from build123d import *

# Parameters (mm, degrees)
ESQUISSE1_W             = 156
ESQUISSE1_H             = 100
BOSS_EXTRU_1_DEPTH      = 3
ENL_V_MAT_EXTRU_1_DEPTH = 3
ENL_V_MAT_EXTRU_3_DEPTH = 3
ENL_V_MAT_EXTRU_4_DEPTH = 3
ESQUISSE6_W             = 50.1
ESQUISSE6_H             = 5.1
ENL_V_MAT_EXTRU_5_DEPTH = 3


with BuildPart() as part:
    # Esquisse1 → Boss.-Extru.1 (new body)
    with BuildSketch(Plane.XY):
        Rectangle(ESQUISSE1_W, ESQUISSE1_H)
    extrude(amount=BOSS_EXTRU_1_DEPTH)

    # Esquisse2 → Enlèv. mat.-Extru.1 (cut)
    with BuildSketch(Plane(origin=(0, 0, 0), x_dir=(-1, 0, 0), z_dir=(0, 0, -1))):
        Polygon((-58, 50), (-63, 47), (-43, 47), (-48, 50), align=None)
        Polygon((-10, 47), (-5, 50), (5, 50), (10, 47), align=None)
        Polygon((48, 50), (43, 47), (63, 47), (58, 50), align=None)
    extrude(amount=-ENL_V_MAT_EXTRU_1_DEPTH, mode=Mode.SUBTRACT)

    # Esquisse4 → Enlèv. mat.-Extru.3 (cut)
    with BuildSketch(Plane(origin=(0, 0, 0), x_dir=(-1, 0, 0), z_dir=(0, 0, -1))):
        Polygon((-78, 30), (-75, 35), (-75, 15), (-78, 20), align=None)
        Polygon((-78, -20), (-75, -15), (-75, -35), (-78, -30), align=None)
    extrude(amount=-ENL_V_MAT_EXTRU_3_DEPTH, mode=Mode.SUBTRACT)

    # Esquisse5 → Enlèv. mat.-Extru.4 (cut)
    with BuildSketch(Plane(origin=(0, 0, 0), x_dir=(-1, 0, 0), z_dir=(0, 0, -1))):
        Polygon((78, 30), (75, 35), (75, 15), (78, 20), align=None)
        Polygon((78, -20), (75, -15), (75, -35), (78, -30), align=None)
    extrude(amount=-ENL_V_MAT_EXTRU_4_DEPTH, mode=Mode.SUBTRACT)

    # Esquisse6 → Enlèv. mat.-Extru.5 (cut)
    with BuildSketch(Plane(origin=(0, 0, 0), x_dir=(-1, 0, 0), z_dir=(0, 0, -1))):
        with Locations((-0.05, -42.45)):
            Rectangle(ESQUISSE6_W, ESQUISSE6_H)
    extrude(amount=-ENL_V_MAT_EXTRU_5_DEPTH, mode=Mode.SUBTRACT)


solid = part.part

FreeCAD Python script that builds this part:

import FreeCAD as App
import Part
import Sketcher
from FreeCAD import Vector
Q = App.Units.Quantity


def add_polygon(sketch, points):
    """Adds a closed chain of lines whose ends are joined by coincident constraints."""
    first, n = sketch.GeometryCount, len(points)
    for a, b in zip(points, points[1:] + points[:1]):
        sketch.addGeometry(Part.LineSegment(App.Vector(*a, 0), App.Vector(*b, 0)), False)
    for i in range(n):
        sketch.addConstraint(Sketcher.Constraint("Coincident", first + i, 2, first + (i + 1) % n, 1))

doc = App.newDocument("Part")
params = doc.addObject("Spreadsheet::Sheet", "Params")
for row, (alias, value) in enumerate([
    ("sketch1_width", "156 mm"),
    ("sketch1_height", "100 mm"),
    ("pad1_length", "3 mm"),
    ("sketch2_width", "20 mm"),
    ("sketch2_width2", "10 mm"),
    ("pocket1_length", "3 mm"),
    ("sketch3_height", "10 mm"),
    ("sketch3_height2", "20 mm"),
    ("pocket2_length", "3 mm"),
    ("sketch4_height", "20 mm"),
    ("sketch4_height2", "10 mm"),
    ("pocket3_length", "3 mm"),
    ("sketch5_width", "50.1 mm"),
    ("sketch5_height", "5.1 mm"),
    ("pocket4_length", "3 mm"),
], start=1):
    params.set(f"A{row}", alias)
    params.set(f"B{row}", "=" + value)
    params.setAlias(f"B{row}", alias)

body = doc.addObject("PartDesign::Body", "Body")

sketch1 = body.newObject("Sketcher::SketchObject", "Sketch")
sketch1.AttachmentSupport = (doc.getObject("XY_Plane"), [""])
sketch1.MapMode = "FlatFace"
add_polygon(sketch1, [(-78, 50), (-78, -50), (78, -50), (78, 50)])
sketch1.addConstraint([
    Sketcher.Constraint("Vertical", 0),
    Sketcher.Constraint("Horizontal", 1),
    Sketcher.Constraint("Vertical", 2),
    Sketcher.Constraint("Horizontal", 3),
    Sketcher.Constraint("Symmetric", 0, 2, 2, 2, -1, 1),
    Sketcher.Constraint("DistanceX", 1, 1, 1, 2, Q("156 mm")),
    Sketcher.Constraint("DistanceY", 0, 2, 0, 1, Q("100 mm")),
])
sketch1.setExpression("Constraints[9]", "Params.sketch1_width")
sketch1.setExpression("Constraints[10]", "Params.sketch1_height")
pad1 = body.newObject("PartDesign::Pad", "Pad")
pad1.Profile = sketch1
pad1.setExpression("Length", "Params.pad1_length")

sketch2 = body.newObject("Sketcher::SketchObject", "Sketch001")
sketch2.AttachmentSupport = (doc.getObject("XY_Plane"), [""])
sketch2.MapMode = "FlatFace"
add_polygon(sketch2, [(58, 50), (63, 47), (43, 47), (48, 50)])
add_polygon(sketch2, [(5, 50), (10, 47), (-10, 47), (-5, 50)])
add_polygon(sketch2, [(-48, 50), (-43, 47), (-63, 47), (-58, 50)])
sketch2.addConstraint([
    Sketcher.Constraint("Horizontal", 1),
    Sketcher.Constraint("Horizontal", 3),
    Sketcher.Constraint("Horizontal", 5),
    Sketcher.Constraint("Horizontal", 7),
    Sketcher.Constraint("Horizontal", 9),
    Sketcher.Constraint("Horizontal", 11),
    Sketcher.Constraint("Symmetric", 1, 2, 8, 2, -2),
    Sketcher.Constraint("Symmetric", 3, 2, 10, 2, -2),
    Sketcher.Constraint("Parallel", 0, 4),
    Sketcher.Constraint("Parallel", 2, 6),
    Sketcher.Constraint("Parallel", 4, 8),
    Sketcher.Constraint("Parallel", 6, 10),
    Sketcher.Constraint("Horizontal", 1, 2, 4, 2),
    Sketcher.Constraint("Horizontal", 3, 2, 6, 2),
    Sketcher.Constraint("Equal", 1, 5),
    Sketcher.Constraint("Equal", 5, 9),
    Sketcher.Constraint("DistanceX", 1, 2, 1, 1, Q("20 mm")),
    Sketcher.Constraint("DistanceX", 3, 1, 3, 2, Q("10 mm")),
    Sketcher.Constraint("DistanceX", -1, 1, 0, 2, Q("63 mm")),
    Sketcher.Constraint("DistanceY", -1, 1, 0, 2, Q("47 mm")),
    Sketcher.Constraint("DistanceY", -1, 1, 2, 2, Q("50 mm")),
    Sketcher.Constraint("DistanceX", -1, 1, 4, 2, Q("10 mm")),
])
sketch2.setExpression("Constraints[28]", "Params.sketch2_width")
sketch2.setExpression("Constraints[29]", "Params.sketch2_width2")
pocket1 = body.newObject("PartDesign::Pocket", "Pocket")
pocket1.Profile = sketch2
pocket1.setExpression("Length", "Params.pocket1_length")
pocket1.Reversed = True

sketch3 = body.newObject("Sketcher::SketchObject", "Sketch002")
sketch3.AttachmentSupport = (doc.getObject("XY_Plane"), [""])
sketch3.MapMode = "FlatFace"
add_polygon(sketch3, [(75, 35), (78, 30), (78, 20), (75, 15)])
add_polygon(sketch3, [(75, -15), (78, -20), (78, -30), (75, -35)])
sketch3.addConstraint([
    Sketcher.Constraint("Vertical", 1),
    Sketcher.Constraint("Vertical", 3),
    Sketcher.Constraint("Vertical", 5),
    Sketcher.Constraint("Vertical", 7),
    Sketcher.Constraint("Symmetric", 1, 2, 4, 2, -1),
    Sketcher.Constraint("Symmetric", 3, 2, 6, 2, -1),
    Sketcher.Constraint("Parallel", 0, 4),
    Sketcher.Constraint("Parallel", 2, 6),
    Sketcher.Constraint("Equal", 1, 5),
    Sketcher.Constraint("DistanceY", 1, 2, 1, 1, Q("10 mm")),
    Sketcher.Constraint("DistanceY", 3, 1, 3, 2, Q("20 mm")),
    Sketcher.Constraint("DistanceX", -1, 1, 0, 2, Q("78 mm")),
    Sketcher.Constraint("DistanceY", -1, 1, 0, 2, Q("30 mm")),
    Sketcher.Constraint("DistanceX", -1, 1, 2, 2, Q("75 mm")),
])
sketch3.setExpression("Constraints[17]", "Params.sketch3_height")
sketch3.setExpression("Constraints[18]", "Params.sketch3_height2")
pocket2 = body.newObject("PartDesign::Pocket", "Pocket001")
pocket2.Profile = sketch3
pocket2.setExpression("Length", "Params.pocket2_length")
pocket2.Reversed = True

sketch4 = body.newObject("Sketcher::SketchObject", "Sketch003")
sketch4.AttachmentSupport = (doc.getObject("XY_Plane"), [""])
sketch4.MapMode = "FlatFace"
add_polygon(sketch4, [(-78, 30), (-75, 35), (-75, 15), (-78, 20)])
add_polygon(sketch4, [(-78, -20), (-75, -15), (-75, -35), (-78, -30)])
sketch4.addConstraint([
    Sketcher.Constraint("Vertical", 1),
    Sketcher.Constraint("Vertical", 3),
    Sketcher.Constraint("Vertical", 5),
    Sketcher.Constraint("Vertical", 7),
    Sketcher.Constraint("Symmetric", 1, 2, 4, 2, -1),
    Sketcher.Constraint("Symmetric", 3, 2, 6, 2, -1),
    Sketcher.Constraint("Parallel", 0, 4),
    Sketcher.Constraint("Parallel", 2, 6),
    Sketcher.Constraint("Equal", 1, 5),
    Sketcher.Constraint("DistanceY", 1, 2, 1, 1, Q("20 mm")),
    Sketcher.Constraint("DistanceY", 3, 1, 3, 2, Q("10 mm")),
    Sketcher.Constraint("DistanceX", 0, 2, -1, 1, Q("75 mm")),
    Sketcher.Constraint("DistanceY", -1, 1, 0, 2, Q("35 mm")),
    Sketcher.Constraint("DistanceX", 2, 2, -1, 1, Q("78 mm")),
])
sketch4.setExpression("Constraints[17]", "Params.sketch4_height")
sketch4.setExpression("Constraints[18]", "Params.sketch4_height2")
pocket3 = body.newObject("PartDesign::Pocket", "Pocket002")
pocket3.Profile = sketch4
pocket3.setExpression("Length", "Params.pocket3_length")
pocket3.Reversed = True

sketch5 = body.newObject("Sketcher::SketchObject", "Sketch004")
sketch5.AttachmentSupport = (doc.getObject("XY_Plane"), [""])
sketch5.MapMode = "FlatFace"
add_polygon(sketch5, [(25, -40), (25, -45), (-25, -45), (-25, -40)])
sketch5.addConstraint([
    Sketcher.Constraint("Vertical", 0),
    Sketcher.Constraint("Horizontal", 1),
    Sketcher.Constraint("Vertical", 2),
    Sketcher.Constraint("Horizontal", 3),
    Sketcher.Constraint("DistanceX", 1, 2, 1, 1, Q("50.1 mm")),
    Sketcher.Constraint("DistanceY", 0, 2, 0, 1, Q("5.1 mm")),
    Sketcher.Constraint("DistanceY", 0, 2, -1, 1, Q("45 mm")),
    Sketcher.Constraint("DistanceX", 1, 2, -1, 1, Q("25 mm")),
])
sketch5.setExpression("Constraints[8]", "Params.sketch5_width")
sketch5.setExpression("Constraints[9]", "Params.sketch5_height")
pocket4 = body.newObject("PartDesign::Pocket", "Pocket003")
pocket4.Profile = sketch5
pocket4.setExpression("Length", "Params.pocket4_length")
pocket4.Reversed = True

doc.recompute()
